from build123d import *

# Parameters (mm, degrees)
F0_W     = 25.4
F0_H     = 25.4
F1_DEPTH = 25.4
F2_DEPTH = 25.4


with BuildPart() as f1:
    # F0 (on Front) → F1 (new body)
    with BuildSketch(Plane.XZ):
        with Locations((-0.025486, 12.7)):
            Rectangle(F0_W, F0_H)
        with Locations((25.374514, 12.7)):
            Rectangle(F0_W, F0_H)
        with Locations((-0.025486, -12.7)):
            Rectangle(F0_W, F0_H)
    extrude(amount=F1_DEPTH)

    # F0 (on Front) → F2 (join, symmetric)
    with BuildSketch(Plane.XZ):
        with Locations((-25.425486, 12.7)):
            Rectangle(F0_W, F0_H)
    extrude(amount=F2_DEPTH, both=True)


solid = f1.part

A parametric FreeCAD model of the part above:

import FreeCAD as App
import Part
import Sketcher
from FreeCAD import Vector
Q = App.Units.Quantity


def add_polygon(sketch, points):
    """Adds a closed chain of lines whose ends are joined by coincident constraints."""
    first, n = sketch.GeometryCount, len(points)
    for a, b in zip(points, points[1:] + points[:1]):
        sketch.addGeometry(Part.LineSegment(App.Vector(*a, 0), App.Vector(*b, 0)), False)
    for i in range(n):
        sketch.addConstraint(Sketcher.Constraint("Coincident", first + i, 2, first + (i + 1) % n, 1))

doc = App.newDocument("Part")
body = doc.addObject("PartDesign::Body", "Body")

sketch1 = body.newObject("Sketcher::SketchObject", "Sketch")
sketch1.AttachmentSupport = (doc.getObject("XZ_Plane"), [""])
sketch1.MapMode = "FlatFace"
add_polygon(sketch1, [(-13, 25), (-13, -25), (13, -25), (13, 0), (38, 0), (38, 25)])
sketch1.addConstraint(Sketcher.Constraint("Vertical", 0))
sketch1.addConstraint(Sketcher.Constraint("Horizontal", 1))
sketch1.addConstraint(Sketcher.Constraint("Vertical", 2))
sketch1.addConstraint(Sketcher.Constraint("Horizontal", 3))
sketch1.addConstraint(Sketcher.Constraint("Vertical", 4))
sketch1.addConstraint(Sketcher.Constraint("Horizontal", 5))
sketch1.addConstraint(Sketcher.Constraint("PointOnObject", 2, 2, -1))
sketch1.addConstraint(Sketcher.Constraint("Equal", 1, 3))
sketch1.addConstraint(Sketcher.Constraint("Equal", 5, 0))
sketch1.addConstraint(Sketcher.Constraint("Equal", 3, 2))
sketch1.addConstraint(Sketcher.Constraint("DistanceX", 1, 1, 1, 2, Q("1 in")))
sketch1.addConstraint(Sketcher.Constraint("DistanceX", 0, 2, -1, 1, Q("12.725486 mm")))
pad1 = body.newObject("PartDesign::Pad", "Pad")
pad1.Profile = sketch1
pad1.Length = Q("1 in")

sketch2 = body.newObject("Sketcher::SketchObject", "Sketch001")
sketch2.AttachmentSupport = (doc.getObject("XZ_Plane"), [""])
sketch2.MapMode = "FlatFace"
add_polygon(sketch2, [(-38, 25), (-38, 0), (-13, 0), (-13, 25)])
sketch2.addConstraint(Sketcher.Constraint("Vertical", 0))
sketch2.addConstraint(Sketcher.Constraint("Horizontal", 1))
sketch2.addConstraint(Sketcher.Constraint("Vertical", 2))
sketch2.addConstraint(Sketcher.Constraint("Horizontal", 3))
sketch2.addConstraint(Sketcher.Constraint("PointOnObject", 0, 2, -1))
sketch2.addConstraint(Sketcher.Constraint("Equal", 3, 0))
sketch2.addConstraint(Sketcher.Constraint("DistanceX", 1, 1, 1, 2, Q("1 in")))
sketch2.addConstraint(Sketcher.Constraint("DistanceX", 0, 2, -1, 1, Q("38.125486 mm")))
pad2 = body.newObject("PartDesign::Pad", "Pad001")
pad2.Profile = sketch2
pad2.Length = Q("2 in")
pad2.Midplane = True

doc.recompute()
